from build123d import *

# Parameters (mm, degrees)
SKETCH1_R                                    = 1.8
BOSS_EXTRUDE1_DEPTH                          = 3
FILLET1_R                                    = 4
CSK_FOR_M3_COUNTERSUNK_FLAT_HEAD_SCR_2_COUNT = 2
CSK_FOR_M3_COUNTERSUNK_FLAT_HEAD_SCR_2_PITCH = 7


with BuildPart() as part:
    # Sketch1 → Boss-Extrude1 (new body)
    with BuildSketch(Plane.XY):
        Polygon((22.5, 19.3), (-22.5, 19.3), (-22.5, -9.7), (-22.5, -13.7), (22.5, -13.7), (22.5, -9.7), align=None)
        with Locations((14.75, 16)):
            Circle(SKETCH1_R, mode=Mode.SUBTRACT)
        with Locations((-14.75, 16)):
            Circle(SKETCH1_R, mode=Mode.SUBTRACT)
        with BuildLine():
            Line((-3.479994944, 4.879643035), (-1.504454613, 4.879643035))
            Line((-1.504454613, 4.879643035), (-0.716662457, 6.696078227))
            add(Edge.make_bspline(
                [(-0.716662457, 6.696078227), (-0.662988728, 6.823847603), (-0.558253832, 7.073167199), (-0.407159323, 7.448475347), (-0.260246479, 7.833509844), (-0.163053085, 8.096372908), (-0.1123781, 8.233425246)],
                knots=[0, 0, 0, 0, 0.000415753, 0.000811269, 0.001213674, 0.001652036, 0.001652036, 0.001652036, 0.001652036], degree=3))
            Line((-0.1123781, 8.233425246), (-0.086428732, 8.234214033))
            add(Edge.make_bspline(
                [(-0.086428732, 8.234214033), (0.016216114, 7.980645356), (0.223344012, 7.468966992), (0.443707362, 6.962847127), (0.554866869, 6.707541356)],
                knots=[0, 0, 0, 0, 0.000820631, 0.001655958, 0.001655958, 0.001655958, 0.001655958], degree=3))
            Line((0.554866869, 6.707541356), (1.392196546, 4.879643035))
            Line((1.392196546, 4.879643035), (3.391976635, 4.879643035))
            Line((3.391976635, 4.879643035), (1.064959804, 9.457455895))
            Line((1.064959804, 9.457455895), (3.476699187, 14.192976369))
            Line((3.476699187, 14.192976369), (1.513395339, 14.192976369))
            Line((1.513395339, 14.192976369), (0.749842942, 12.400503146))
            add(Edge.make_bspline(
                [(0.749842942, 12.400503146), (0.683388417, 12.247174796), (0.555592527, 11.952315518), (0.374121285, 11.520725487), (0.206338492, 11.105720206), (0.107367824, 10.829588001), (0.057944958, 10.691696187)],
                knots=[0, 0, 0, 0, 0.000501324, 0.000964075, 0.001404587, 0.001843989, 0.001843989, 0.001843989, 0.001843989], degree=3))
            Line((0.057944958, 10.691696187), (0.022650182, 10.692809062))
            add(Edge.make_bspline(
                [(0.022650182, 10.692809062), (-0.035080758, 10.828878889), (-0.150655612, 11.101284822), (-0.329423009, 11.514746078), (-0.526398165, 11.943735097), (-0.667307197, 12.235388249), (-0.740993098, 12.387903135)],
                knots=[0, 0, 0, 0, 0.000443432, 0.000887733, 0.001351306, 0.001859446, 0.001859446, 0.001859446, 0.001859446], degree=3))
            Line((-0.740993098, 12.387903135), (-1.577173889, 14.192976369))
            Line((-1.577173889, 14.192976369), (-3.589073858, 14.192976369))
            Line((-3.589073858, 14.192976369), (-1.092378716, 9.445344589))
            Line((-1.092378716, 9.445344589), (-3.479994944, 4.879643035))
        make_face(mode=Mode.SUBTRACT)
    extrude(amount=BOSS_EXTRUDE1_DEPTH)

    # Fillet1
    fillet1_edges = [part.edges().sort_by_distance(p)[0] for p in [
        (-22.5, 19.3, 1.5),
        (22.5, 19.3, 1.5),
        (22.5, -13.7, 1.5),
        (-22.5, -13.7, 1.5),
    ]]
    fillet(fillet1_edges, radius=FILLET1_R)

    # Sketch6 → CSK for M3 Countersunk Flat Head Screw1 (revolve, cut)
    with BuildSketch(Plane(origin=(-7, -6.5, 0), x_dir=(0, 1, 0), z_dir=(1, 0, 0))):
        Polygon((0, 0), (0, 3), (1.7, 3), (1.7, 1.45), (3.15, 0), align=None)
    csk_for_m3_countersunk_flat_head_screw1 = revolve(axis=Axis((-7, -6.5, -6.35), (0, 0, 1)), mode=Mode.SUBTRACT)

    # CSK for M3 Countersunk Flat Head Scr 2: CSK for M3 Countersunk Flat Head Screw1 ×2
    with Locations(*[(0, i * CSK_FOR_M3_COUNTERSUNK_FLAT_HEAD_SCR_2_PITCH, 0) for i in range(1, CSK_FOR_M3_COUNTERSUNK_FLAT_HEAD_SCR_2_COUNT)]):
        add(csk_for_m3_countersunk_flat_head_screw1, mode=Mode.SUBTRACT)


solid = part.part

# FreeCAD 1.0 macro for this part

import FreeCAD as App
import Part
import Sketcher

V = App.Vector
Q = App.Units.Quantity


def edges_at(feature, points):
    """Names of the edges that pass closest to the given points."""
    edges = feature.Shape.Edges
    near = lambda p: min(range(len(edges)), key=lambda i: edges[i].distToShape(Part.Vertex(*p))[0])
    return sorted({f"Edge{near(p) + 1}" for p in points})


def add_polygon(sketch, points):
    """Adds a closed chain of lines whose ends are joined by coincident constraints."""
    first, n = sketch.GeometryCount, len(points)
    for a, b in zip(points, points[1:] + points[:1]):
        sketch.addGeometry(Part.LineSegment(App.Vector(*a, 0), App.Vector(*b, 0)), False)
    for i in range(n):
        sketch.addConstraint(Sketcher.Constraint("Coincident", first + i, 2, first + (i + 1) % n, 1))

doc = App.newDocument("Part")
body = doc.addObject("PartDesign::Body", "Body")

# Sketch on XY plane
sketch1 = doc.addObject("Sketcher::SketchObject", "Sketch")
body.addObject(sketch1)
sketch1.AttachmentSupport = (doc.XY_Plane, [""])
sketch1.MapMode = "FlatFace"
add_polygon(sketch1, [(22.5, 19.3), (-22.5, 19.3), (-22.5, -13.7), (22.5, -13.7)])  # lines 0-3
sketch1.addGeometry(Part.LineSegment(V(-1.504455, 4.879643, 0), V(-3.479995, 4.879643, 0)), False)  # 4
sketch1.addGeometry(Part.LineSegment(V(-3.479995, 4.879643, 0), V(-1.092379, 9.445345, 0)), False)  # 5
sketch1.addGeometry(Part.LineSegment(V(-1.092379, 9.445345, 0), V(-3.589074, 14.192976, 0)), False)  # 6
sketch1.addGeometry(Part.LineSegment(V(-3.589074, 14.192976, 0), V(-1.577174, 14.192976, 0)), False)  # 7
sketch1.addGeometry(Part.LineSegment(V(-1.577174, 14.192976, 0), V(-0.740993, 12.387903, 0)), False)  # 8
sketch1.addGeometry(Part.BSplineCurve([V(0.02265, 10.692809, 0), V(-0.035081, 10.828879, 0), V(-0.150656, 11.101285, 0), V(-0.329423, 11.514746, 0), V(-0.526398, 11.943735, 0), V(-0.667307, 12.235388, 0), V(-0.740993, 12.387903, 0)], [4, 1, 1, 1, 4], [0, 0.000443432, 0.000887733, 0.001351306, 0.001859446], False, 3, [1, 1, 1, 1, 1, 1, 1], False), False)  # 9
sketch1.addGeometry(Part.LineSegment(V(0.02265, 10.692809, 0), V(0.057945, 10.691696, 0)), False)  # 10
sketch1.addGeometry(Part.BSplineCurve([V(0.749843, 12.400503, 0), V(0.683388, 12.247175, 0), V(0.555593, 11.952316, 0), V(0.374121, 11.520725, 0), V(0.206338, 11.10572, 0), V(0.107368, 10.829588, 0), V(0.057945, 10.691696, 0)], [4, 1, 1, 1, 4], [0, 0.000501324, 0.000964075, 0.001404587, 0.001843989], False, 3, [1, 1, 1, 1, 1, 1, 1], False), False)  # 11
sketch1.addGeometry(Part.LineSegment(V(0.749843, 12.400503, 0), V(1.513395, 14.192976, 0)), False)  # 12
sketch1.addGeometry(Part.LineSegment(V(1.513395, 14.192976, 0), V(3.476699, 14.192976, 0)), False)  # 13
sketch1.addGeometry(Part.LineSegment(V(3.476699, 14.192976, 0), V(1.06496, 9.457456, 0)), False)  # 14
sketch1.addGeometry(Part.LineSegment(V(1.06496, 9.457456, 0), V(3.391977, 4.879643, 0)), False)  # 15
sketch1.addGeometry(Part.LineSegment(V(3.391977, 4.879643, 0), V(1.392197, 4.879643, 0)), False)  # 16
sketch1.addGeometry(Part.LineSegment(V(1.392197, 4.879643, 0), V(0.554867, 6.707541, 0)), False)  # 17
sketch1.addGeometry(Part.BSplineCurve([V(-0.086429, 8.234214, 0), V(0.016216, 7.980645, 0), V(0.223344, 7.468967, 0), V(0.443707, 6.962847, 0), V(0.554867, 6.707541, 0)], [4, 1, 4], [0, 0.000820631, 0.001655958], False, 3, [1, 1, 1, 1, 1], False), False)  # 18
sketch1.addGeometry(Part.LineSegment(V(-0.086429, 8.234214, 0), V(-0.112378, 8.233425, 0)), False)  # 19
sketch1.addGeometry(Part.BSplineCurve([V(-0.716662, 6.696078, 0), V(-0.662989, 6.823848, 0), V(-0.558254, 7.073167, 0), V(-0.407159, 7.448475, 0), V(-0.260246, 7.83351, 0), V(-0.163053, 8.096373, 0), V(-0.112378, 8.233425, 0)], [4, 1, 1, 1, 4], [0, 0.000415753, 0.000811269, 0.001213674, 0.001652036], False, 3, [1, 1, 1, 1, 1, 1, 1], False), False)  # 20
sketch1.addGeometry(Part.LineSegment(V(-0.716662, 6.696078, 0), V(-1.504455, 4.879643, 0)), False)  # 21
sketch1.addGeometry(Part.Circle(V(-14.75, 16, 0), V(0, 0, 1), 1.8), False)  # 22
sketch1.addGeometry(Part.Circle(V(14.75, 16, 0), V(0, 0, 1), 1.8), False)  # 23
sketch1.addConstraint([
    Sketcher.Constraint("Block", 9),
    Sketcher.Constraint("Block", 11),
    Sketcher.Constraint("Block", 18),
    Sketcher.Constraint("Block", 20),
    Sketcher.Constraint("Coincident", 4, 2, 5, 1),
    Sketcher.Constraint("Coincident", 5, 2, 6, 1),
    Sketcher.Constraint("Coincident", 6, 2, 7, 1),
    Sketcher.Constraint("Coincident", 7, 2, 8, 1),
    Sketcher.Constraint("Coincident", 8, 2, 9, 2),
    Sketcher.Constraint("Coincident", 9, 1, 10, 1),
    Sketcher.Constraint("Coincident", 10, 2, 11, 2),
    Sketcher.Constraint("Coincident", 11, 1, 12, 1),
    Sketcher.Constraint("Coincident", 12, 2, 13, 1),
    Sketcher.Constraint("Coincident", 13, 2, 14, 1),
    Sketcher.Constraint("Coincident", 14, 2, 15, 1),
    Sketcher.Constraint("Coincident", 15, 2, 16, 1),
    Sketcher.Constraint("Coincident", 16, 2, 17, 1),
    Sketcher.Constraint("Coincident", 17, 2, 18, 2),
    Sketcher.Constraint("Coincident", 18, 1, 19, 1),
    Sketcher.Constraint("Coincident", 19, 2, 20, 2),
    Sketcher.Constraint("Coincident", 20, 1, 21, 1),
    Sketcher.Constraint("Coincident", 21, 2, 4, 1),
    Sketcher.Constraint("Horizontal", 0),
    Sketcher.Constraint("Vertical", 1),
    Sketcher.Constraint("Horizontal", 2),
    Sketcher.Constraint("Vertical", 3),
    Sketcher.Constraint("Horizontal", 4),
    Sketcher.Constraint("Horizontal", 7),
    Sketcher.Constraint("Horizontal", 13),
    Sketcher.Constraint("Horizontal", 16),
    Sketcher.Constraint("Equal", 22, 23),
    Sketcher.Constraint("Symmetric", 22, 3, 23, 3, -2),
    Sketcher.Constraint("Horizontal", 7, 2, 12, 2),
    Sketcher.Constraint("Horizontal", 4, 2, 15, 2),
    Sketcher.Constraint("Diameter", 22, Q("3.6 mm")),
    Sketcher.Constraint("DistanceX", 0, 2, 0, 1, Q("45 mm")),
    Sketcher.Constraint("DistanceY", 1, 2, 1, 1, Q("33 mm")),
    Sketcher.Constraint("DistanceY", -1, 1, 22, 3, Q("16 mm")),
    Sketcher.Constraint("DistanceX", 0, 2, -1, 1, Q("22.5 mm")),
    Sketcher.Constraint("DistanceY", -1, 1, 0, 2, Q("19.3 mm")),
    Sketcher.Constraint("DistanceX", 22, 3, 23, 3, Q("29.5 mm")),
    Sketcher.Constraint("DistanceX", 5, 2, 19, 2, Q("0.980001 mm")),
    Sketcher.Constraint("DistanceX", 7, 1, 7, 2, Q("2.0119 mm")),
    Sketcher.Constraint("DistanceX", 4, 2, 8, 2, Q("2.739002 mm")),
    Sketcher.Constraint("DistanceX", 4, 2, 4, 1, Q("1.97554 mm")),
    Sketcher.Constraint("DistanceX", 16, 2, 16, 1, Q("1.99978 mm")),
    Sketcher.Constraint("DistanceX", -1, 1, 13, 2, Q("3.476699 mm")),
    Sketcher.Constraint("DistanceY", 4, 2, 5, 2, Q("4.565702 mm")),
    Sketcher.Constraint("DistanceY", 16, 2, 17, 2, Q("1.827898 mm")),
    Sketcher.Constraint("DistanceX", 13, 1, 13, 2, Q("1.963304 mm")),
    Sketcher.Constraint("DistanceX", -1, 1, 14, 2, Q("1.06496 mm")),
    Sketcher.Constraint("DistanceY", 5, 2, 6, 2, Q("4.747632 mm")),
    Sketcher.Constraint("DistanceX", 6, 2, 4, 2, Q("0.109079 mm")),
    Sketcher.Constraint("DistanceY", 14, 2, 10, 2, Q("1.23424 mm")),
    Sketcher.Constraint("DistanceX", 10, 2, 15, 2, Q("3.334032 mm")),
])
pad1 = doc.addObject("PartDesign::Pad", "Pad")
body.addObject(pad1)
pad1.Profile = sketch1
pad1.Length = 3
doc.recompute()

fillet = doc.addObject("PartDesign::Fillet", "Fillet")
body.addObject(fillet)
fillet.Base = (pad1, edges_at(pad1, [
    (-22.5, 19.3, 1.5),
    (22.5, 19.3, 1.5),
    (22.5, -13.7, 1.5),
    (-22.5, -13.7, 1.5),
]))
fillet.Radius = 4

# Sketch on YZ plane
sketch2 = doc.addObject("Sketcher::SketchObject", "Sketch001")
body.addObject(sketch2)
sketch2.AttachmentSupport = (doc.YZ_Plane, [""])
sketch2.MapMode = "FlatFace"
sketch2.AttachmentOffset = App.Placement(V(0, 0, -7), App.Rotation())
add_polygon(sketch2, [(-6.5, 3), (-6.5, 0), (-3.35, 0), (-4.8, 1.45), (-4.8, 3)])  # lines 0-4
sketch2.addGeometry(Part.LineSegment(V(-6.5, 0, 0), V(-6.5, 3, 0)), True)  # axis
sketch2.addConstraint([
    Sketcher.Constraint("Vertical", 0),
    Sketcher.Constraint("Horizontal", 1),
    Sketcher.Constraint("Vertical", 3),
    Sketcher.Constraint("Horizontal", 4),
    Sketcher.Constraint("Vertical", 5),
    Sketcher.Constraint("Coincident", 5, 1, 0, 2),
    Sketcher.Constraint("PointOnObject", 0, 2, -1),
    Sketcher.Constraint("Horizontal", 3, 2, 5, 2),
    Sketcher.Constraint("DistanceY", 0, 2, 0, 1, Q("3 mm")),
    Sketcher.Constraint("Angle", 2, Q("135 deg")),
    Sketcher.Constraint("DistanceX", 4, 2, 4, 1, Q("1.7 mm")),
    Sketcher.Constraint("DistanceX", 1, 1, 1, 2, Q("3.15 mm")),
    Sketcher.Constraint("DistanceX", 0, 2, -1, 1, Q("6.5 mm")),
])
groove = doc.addObject("PartDesign::Groove", "Groove")
body.addObject(groove)
groove.Profile = sketch2
groove.ReferenceAxis = (sketch2, ["Axis0"])
groove.Angle = 360
doc.recompute()

linearpattern = doc.addObject("PartDesign::LinearPattern", "LinearPattern")
body.addObject(linearpattern)
linearpattern.Originals = [groove]
linearpattern.Direction = (doc.Y_Axis, [""])
linearpattern.Mode = "offset"
linearpattern.Offset = 7
linearpattern.Occurrences = 2
body.Tip = linearpattern

doc.recompute()
